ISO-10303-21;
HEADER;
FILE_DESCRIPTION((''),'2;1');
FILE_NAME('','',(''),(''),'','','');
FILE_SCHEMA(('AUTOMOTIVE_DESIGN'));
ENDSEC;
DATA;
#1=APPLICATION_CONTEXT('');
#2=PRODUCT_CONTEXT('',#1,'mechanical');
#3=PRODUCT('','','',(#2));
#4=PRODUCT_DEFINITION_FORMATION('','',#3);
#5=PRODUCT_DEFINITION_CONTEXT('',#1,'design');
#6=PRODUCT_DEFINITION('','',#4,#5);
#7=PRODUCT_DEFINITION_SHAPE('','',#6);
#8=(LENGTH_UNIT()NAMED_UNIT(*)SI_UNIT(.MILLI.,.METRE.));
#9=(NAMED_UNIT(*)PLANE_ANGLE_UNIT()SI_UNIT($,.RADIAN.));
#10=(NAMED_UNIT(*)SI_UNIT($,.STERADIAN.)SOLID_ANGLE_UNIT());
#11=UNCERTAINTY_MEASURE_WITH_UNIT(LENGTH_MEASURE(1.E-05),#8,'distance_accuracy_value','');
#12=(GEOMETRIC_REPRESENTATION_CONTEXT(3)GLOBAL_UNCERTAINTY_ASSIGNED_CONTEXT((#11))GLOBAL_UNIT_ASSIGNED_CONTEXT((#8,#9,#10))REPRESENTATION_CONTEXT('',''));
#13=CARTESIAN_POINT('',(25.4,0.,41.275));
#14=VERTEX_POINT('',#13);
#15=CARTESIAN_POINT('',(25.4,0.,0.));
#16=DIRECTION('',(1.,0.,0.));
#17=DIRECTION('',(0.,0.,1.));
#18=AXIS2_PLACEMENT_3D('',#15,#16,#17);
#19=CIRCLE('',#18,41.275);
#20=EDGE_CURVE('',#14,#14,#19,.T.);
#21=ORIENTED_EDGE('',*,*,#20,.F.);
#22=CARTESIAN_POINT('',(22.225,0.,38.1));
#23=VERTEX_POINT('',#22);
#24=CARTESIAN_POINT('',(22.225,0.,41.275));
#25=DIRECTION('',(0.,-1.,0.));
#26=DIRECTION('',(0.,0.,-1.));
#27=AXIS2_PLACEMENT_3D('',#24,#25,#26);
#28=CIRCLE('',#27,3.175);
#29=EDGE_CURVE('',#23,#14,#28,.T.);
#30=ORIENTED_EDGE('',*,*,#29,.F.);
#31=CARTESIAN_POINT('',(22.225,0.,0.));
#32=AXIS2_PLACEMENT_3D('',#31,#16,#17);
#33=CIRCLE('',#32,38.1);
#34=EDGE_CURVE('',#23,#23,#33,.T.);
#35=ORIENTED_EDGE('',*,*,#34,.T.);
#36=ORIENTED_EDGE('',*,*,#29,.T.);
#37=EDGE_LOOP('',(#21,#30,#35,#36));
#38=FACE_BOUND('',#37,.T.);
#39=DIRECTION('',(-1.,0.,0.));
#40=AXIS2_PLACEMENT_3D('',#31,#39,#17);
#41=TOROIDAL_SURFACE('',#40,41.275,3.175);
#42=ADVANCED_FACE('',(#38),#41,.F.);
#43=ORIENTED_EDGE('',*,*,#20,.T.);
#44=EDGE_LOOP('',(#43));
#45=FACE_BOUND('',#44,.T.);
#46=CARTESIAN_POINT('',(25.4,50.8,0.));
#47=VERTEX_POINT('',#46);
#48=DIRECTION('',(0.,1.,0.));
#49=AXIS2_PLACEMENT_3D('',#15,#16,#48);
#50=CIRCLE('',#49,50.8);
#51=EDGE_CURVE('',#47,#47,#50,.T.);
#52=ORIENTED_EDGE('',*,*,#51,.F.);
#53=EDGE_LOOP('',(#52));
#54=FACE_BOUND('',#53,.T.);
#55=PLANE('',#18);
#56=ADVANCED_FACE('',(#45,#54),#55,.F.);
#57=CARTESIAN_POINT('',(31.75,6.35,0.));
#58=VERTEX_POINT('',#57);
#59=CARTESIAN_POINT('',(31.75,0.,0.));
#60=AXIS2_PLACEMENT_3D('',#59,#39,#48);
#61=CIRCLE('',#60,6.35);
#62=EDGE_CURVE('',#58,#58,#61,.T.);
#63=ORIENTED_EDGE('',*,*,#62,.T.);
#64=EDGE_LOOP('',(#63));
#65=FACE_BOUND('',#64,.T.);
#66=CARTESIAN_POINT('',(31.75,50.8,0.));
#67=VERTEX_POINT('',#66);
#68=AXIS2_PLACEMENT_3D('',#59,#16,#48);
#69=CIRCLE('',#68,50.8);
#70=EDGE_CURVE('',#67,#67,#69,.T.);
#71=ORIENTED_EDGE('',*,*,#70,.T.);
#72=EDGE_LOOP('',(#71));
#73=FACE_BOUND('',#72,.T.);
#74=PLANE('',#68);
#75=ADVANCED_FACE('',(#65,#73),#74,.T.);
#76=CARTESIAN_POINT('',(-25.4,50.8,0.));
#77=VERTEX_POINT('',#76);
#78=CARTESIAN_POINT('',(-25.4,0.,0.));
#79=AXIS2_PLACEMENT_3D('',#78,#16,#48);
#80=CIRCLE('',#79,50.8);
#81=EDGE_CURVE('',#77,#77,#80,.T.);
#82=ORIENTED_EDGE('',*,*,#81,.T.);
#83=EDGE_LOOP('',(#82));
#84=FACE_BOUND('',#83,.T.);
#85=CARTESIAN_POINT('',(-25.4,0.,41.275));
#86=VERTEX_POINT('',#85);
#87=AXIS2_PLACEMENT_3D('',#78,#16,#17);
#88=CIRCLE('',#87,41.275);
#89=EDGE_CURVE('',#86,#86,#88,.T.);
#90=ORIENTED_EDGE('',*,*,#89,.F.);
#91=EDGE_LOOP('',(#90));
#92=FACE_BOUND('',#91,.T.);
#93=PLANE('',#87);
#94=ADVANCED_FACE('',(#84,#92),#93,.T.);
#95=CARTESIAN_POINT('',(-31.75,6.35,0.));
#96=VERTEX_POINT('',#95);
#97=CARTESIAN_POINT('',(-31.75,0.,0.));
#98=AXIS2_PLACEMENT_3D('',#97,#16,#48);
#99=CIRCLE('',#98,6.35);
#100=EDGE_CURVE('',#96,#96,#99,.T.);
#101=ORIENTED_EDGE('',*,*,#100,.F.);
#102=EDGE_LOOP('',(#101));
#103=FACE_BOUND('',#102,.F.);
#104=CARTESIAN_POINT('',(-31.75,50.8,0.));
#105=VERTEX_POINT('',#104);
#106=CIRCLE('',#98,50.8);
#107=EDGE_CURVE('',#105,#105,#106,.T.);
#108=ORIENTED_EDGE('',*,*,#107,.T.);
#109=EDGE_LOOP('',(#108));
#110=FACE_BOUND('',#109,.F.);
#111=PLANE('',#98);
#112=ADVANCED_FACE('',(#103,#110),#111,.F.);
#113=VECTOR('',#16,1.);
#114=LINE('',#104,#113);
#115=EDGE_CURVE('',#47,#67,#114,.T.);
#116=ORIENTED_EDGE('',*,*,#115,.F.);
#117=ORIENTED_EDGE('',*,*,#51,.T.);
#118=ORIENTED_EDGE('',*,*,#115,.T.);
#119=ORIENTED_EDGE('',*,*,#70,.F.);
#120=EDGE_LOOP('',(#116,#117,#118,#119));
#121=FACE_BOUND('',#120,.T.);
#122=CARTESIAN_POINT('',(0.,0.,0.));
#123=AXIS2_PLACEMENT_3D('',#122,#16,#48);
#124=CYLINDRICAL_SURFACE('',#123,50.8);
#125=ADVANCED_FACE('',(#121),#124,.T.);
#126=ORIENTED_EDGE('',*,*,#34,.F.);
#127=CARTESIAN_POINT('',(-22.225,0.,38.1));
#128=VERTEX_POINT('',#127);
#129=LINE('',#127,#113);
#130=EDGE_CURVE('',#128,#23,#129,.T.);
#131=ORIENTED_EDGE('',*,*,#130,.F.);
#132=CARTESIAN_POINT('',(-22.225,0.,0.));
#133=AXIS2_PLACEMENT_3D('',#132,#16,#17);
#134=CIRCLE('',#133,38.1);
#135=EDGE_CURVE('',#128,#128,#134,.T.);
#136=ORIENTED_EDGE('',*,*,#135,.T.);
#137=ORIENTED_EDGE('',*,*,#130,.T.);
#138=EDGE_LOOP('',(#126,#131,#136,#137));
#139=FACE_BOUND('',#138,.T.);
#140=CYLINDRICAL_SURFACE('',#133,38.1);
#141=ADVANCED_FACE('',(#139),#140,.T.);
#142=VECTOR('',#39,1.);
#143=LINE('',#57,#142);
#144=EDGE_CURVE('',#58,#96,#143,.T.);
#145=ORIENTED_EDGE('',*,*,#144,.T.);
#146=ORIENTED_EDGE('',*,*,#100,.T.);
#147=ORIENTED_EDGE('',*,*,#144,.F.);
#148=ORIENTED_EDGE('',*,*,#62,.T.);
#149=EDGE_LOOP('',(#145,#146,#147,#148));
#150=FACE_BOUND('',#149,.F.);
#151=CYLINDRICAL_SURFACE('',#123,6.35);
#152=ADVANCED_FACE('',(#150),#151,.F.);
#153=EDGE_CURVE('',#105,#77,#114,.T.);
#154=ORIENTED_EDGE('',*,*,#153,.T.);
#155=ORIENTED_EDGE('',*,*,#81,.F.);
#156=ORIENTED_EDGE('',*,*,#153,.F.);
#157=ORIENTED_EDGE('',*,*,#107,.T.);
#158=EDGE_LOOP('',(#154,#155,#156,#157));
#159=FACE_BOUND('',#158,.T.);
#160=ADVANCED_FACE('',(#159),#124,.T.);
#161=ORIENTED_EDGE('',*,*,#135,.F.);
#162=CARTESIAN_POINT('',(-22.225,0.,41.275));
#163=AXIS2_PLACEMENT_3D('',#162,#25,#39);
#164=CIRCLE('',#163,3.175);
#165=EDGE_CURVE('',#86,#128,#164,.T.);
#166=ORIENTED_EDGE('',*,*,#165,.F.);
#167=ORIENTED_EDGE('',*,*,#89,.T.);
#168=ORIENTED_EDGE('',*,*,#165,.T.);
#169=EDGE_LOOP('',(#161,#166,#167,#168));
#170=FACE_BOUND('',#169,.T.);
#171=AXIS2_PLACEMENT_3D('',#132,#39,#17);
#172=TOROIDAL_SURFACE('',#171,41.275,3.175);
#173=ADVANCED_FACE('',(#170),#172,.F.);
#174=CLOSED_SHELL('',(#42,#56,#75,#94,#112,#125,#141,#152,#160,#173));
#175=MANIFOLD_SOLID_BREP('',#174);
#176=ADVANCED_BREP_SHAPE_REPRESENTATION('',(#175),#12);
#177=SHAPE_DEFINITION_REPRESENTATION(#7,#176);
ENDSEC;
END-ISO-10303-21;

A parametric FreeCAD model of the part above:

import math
import FreeCAD as App
import Part
import Sketcher

V = App.Vector
Q = App.Units.Quantity

doc = App.newDocument("Part")
params = doc.addObject("Spreadsheet::Sheet", "Params")
for row, (alias, value) in enumerate([
    ("sketch1_diameter", "4 in"),
    ("pad1_length", "2.5 in"),
    ("sketch2_radius", "0.125 in"),
    ("groove_angle", "360 deg"),
    ("sketch3_diameter", "0.5 in"),
], start=1):
    params.set(f"A{row}", alias)
    params.set(f"B{row}", "=" + value)
    params.setAlias(f"B{row}", alias)

body = doc.addObject("PartDesign::Body", "Body")

sketch1 = doc.addObject("Sketcher::SketchObject", "Sketch")
body.addObject(sketch1)
sketch1.AttachmentSupport = (doc.YZ_Plane, [""])
sketch1.MapMode = "FlatFace"
sketch1.addGeometry(Part.Circle(V(0, 0, 0), V(0, 0, 1), 50.8), False)
sketch1.addConstraint(Sketcher.Constraint("Coincident", 0, 3, -1, 1))
sketch1.addConstraint(Sketcher.Constraint("Diameter", 0, Q("4 in")))
sketch1.setExpression("Constraints[1]", "Params.sketch1_diameter")
pad1 = doc.addObject("PartDesign::Pad", "Pad")
body.addObject(pad1)
pad1.Profile = sketch1
pad1.setExpression("Length", "Params.pad1_length")
pad1.Midplane = True

sketch2 = doc.addObject("Sketcher::SketchObject", "Sketch001")
body.addObject(sketch2)
sketch2.AttachmentSupport = (doc.XZ_Plane, [""])
sketch2.MapMode = "FlatFace"
sketch2.addGeometry(Part.ArcOfCircle(Part.Circle(V(22.225, 74.373294, 0), V(0, 0, 1), 3.175), math.radians(0), math.radians(90)), False)
sketch2.addGeometry(Part.LineSegment(V(22.225, 77.548294, 0), V(-22.225, 77.548294, 0)), False)
sketch2.addGeometry(Part.ArcOfCircle(Part.Circle(V(-22.225, 74.373294, 0), V(0, 0, 1), 3.175), math.radians(90), math.radians(180)), False)
sketch2.addGeometry(Part.LineSegment(V(-25.4, 74.373294, 0), V(-25.4, 41.275, 0)), False)
sketch2.addGeometry(Part.ArcOfCircle(Part.Circle(V(-22.225, 41.275, 0), V(0, 0, 1), 3.175), math.radians(180), math.radians(270)), False)
sketch2.addGeometry(Part.LineSegment(V(-22.225, 38.1, 0), V(22.225, 38.1, 0)), False)
sketch2.addGeometry(Part.ArcOfCircle(Part.Circle(V(22.225, 41.275, 0), V(0, 0, 1), 3.175), math.radians(-90), math.radians(0)), False)
sketch2.addGeometry(Part.LineSegment(V(25.4, 41.275, 0), V(25.4, 74.373294, 0)), False)
sketch2.addConstraint(Sketcher.Constraint("Tangent", 0, 2, 1, 1))
sketch2.addConstraint(Sketcher.Constraint("Tangent", 1, 2, 2, 1))
sketch2.addConstraint(Sketcher.Constraint("Tangent", 2, 2, 3, 1))
sketch2.addConstraint(Sketcher.Constraint("Tangent", 3, 2, 4, 1))
sketch2.addConstraint(Sketcher.Constraint("Tangent", 4, 2, 5, 1))
sketch2.addConstraint(Sketcher.Constraint("Tangent", 5, 2, 6, 1))
sketch2.addConstraint(Sketcher.Constraint("Tangent", 6, 2, 7, 1))
sketch2.addConstraint(Sketcher.Constraint("Tangent", 7, 2, 0, 1))
sketch2.addConstraint(Sketcher.Constraint("Horizontal", 1))
sketch2.addConstraint(Sketcher.Constraint("Vertical", 3))
sketch2.addConstraint(Sketcher.Constraint("Horizontal", 5))
sketch2.addConstraint(Sketcher.Constraint("Vertical", 7))
sketch2.addConstraint(Sketcher.Constraint("Equal", 0, 2))
sketch2.addConstraint(Sketcher.Constraint("Equal", 2, 4))
sketch2.addConstraint(Sketcher.Constraint("Equal", 4, 6))
sketch2.addConstraint(Sketcher.Constraint("DistanceX", 2, 2, -1, 1, Q("1 in")))
sketch2.addConstraint(Sketcher.Constraint("DistanceX", -1, 1, 6, 2, Q("1 in")))
sketch2.addConstraint(Sketcher.Constraint("Radius", 0, Q("0.125 in")))
sketch2.addConstraint(Sketcher.Constraint("DistanceY", -1, 1, 4, 2, Q("1.5 in")))
sketch2.addConstraint(Sketcher.Constraint("DistanceY", 3, 2, 3, 1, 33.098294))
sketch2.setExpression("Constraints[17]", "Params.sketch2_radius")
groove = doc.addObject("PartDesign::Groove", "Groove")
body.addObject(groove)
groove.Profile = sketch2
groove.ReferenceAxis = (sketch2, ["H_Axis"])
groove.setExpression("Angle", "Params.groove_angle")

sketch3 = doc.addObject("Sketcher::SketchObject", "Sketch002")
body.addObject(sketch3)
sketch3.AttachmentSupport = (doc.YZ_Plane, [""])
sketch3.MapMode = "FlatFace"
sketch3.addGeometry(Part.Circle(V(0, 0, 0), V(0, 0, 1), 6.35), False)
sketch3.addConstraint(Sketcher.Constraint("Coincident", 0, 3, -1, 1))
sketch3.addConstraint(Sketcher.Constraint("Diameter", 0, Q("0.5 in")))
sketch3.setExpression("Constraints[1]", "Params.sketch3_diameter")
pocket1 = doc.addObject("PartDesign::Pocket", "Pocket")
body.addObject(pocket1)
pocket1.Profile = sketch3
pocket1.Type = "ThroughAll"
pocket1.Midplane = True

doc.recompute()
